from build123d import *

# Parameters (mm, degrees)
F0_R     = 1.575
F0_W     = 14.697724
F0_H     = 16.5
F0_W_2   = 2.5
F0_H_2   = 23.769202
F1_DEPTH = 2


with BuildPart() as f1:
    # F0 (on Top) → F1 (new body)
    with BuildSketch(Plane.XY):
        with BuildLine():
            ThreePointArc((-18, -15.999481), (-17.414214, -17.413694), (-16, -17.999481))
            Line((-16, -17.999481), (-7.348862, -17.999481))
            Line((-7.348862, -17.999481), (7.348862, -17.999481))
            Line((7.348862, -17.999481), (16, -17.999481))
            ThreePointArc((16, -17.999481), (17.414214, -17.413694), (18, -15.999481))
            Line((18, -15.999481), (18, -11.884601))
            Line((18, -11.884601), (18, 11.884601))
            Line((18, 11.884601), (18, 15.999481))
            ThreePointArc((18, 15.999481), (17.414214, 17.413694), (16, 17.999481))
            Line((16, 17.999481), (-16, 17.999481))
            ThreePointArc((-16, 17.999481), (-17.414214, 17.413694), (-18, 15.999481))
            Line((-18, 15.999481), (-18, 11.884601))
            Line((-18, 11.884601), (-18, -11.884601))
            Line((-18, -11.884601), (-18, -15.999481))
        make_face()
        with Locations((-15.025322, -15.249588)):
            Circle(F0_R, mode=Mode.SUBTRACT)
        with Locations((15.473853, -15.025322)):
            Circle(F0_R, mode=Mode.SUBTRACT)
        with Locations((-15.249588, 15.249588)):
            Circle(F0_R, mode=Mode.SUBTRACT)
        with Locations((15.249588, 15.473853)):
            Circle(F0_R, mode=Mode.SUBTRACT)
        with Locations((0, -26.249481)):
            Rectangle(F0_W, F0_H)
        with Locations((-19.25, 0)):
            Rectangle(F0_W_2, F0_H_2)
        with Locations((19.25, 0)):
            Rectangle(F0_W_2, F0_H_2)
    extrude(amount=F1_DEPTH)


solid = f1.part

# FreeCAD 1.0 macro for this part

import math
import FreeCAD as App
import Part
import Sketcher
from FreeCAD import Vector
Q = App.Units.Quantity

doc = App.newDocument("Part")
body = doc.addObject("PartDesign::Body", "Body")

# Sketch on XY plane
sketch1 = body.newObject("Sketcher::SketchObject", "Sketch")
sketch1.AttachmentSupport = (doc.getObject("XY_Plane"), [""])
sketch1.MapMode = "FlatFace"
sketch1.addGeometry(Part.ArcOfCircle(Part.Circle(Vector(-16, -15.999481, 0), Vector(0, 0, 1), 2), math.radians(-179.999994), math.radians(-90.000006)), False)
sketch1.addGeometry(Part.LineSegment(Vector(-16, -17.999481, 0), Vector(-7.348862, -17.999481, 0)), False)
sketch1.addGeometry(Part.LineSegment(Vector(-7.348862, -17.999481, 0), Vector(-7.348862, -34.499481, 0)), False)
sketch1.addGeometry(Part.LineSegment(Vector(-7.348862, -34.499481, 0), Vector(7.348862, -34.499481, 0)), False)
sketch1.addGeometry(Part.LineSegment(Vector(7.348862, -34.499481, 0), Vector(7.348862, -17.999481, 0)), False)
sketch1.addGeometry(Part.LineSegment(Vector(7.348862, -17.999481, 0), Vector(16, -17.999481, 0)), False)
sketch1.addGeometry(Part.ArcOfCircle(Part.Circle(Vector(16, -15.999481, 0), Vector(0, 0, 1), 2), math.radians(-89.999994), math.radians(-0.000006)), False)
sketch1.addGeometry(Part.LineSegment(Vector(18, -15.999481, 0), Vector(18, -11.884601, 0)), False)
sketch1.addGeometry(Part.LineSegment(Vector(18, -11.884601, 0), Vector(20.5, -11.884601, 0)), False)
sketch1.addGeometry(Part.LineSegment(Vector(20.5, -11.884601, 0), Vector(20.5, 11.884601, 0)), False)
sketch1.addGeometry(Part.LineSegment(Vector(20.5, 11.884601, 0), Vector(18, 11.884601, 0)), False)
sketch1.addGeometry(Part.LineSegment(Vector(18, 11.884601, 0), Vector(18, 15.999481, 0)), False)
sketch1.addGeometry(Part.ArcOfCircle(Part.Circle(Vector(16, 15.999481, 0), Vector(0, 0, 1), 2), math.radians(0.000006), math.radians(89.999994)), False)
sketch1.addGeometry(Part.LineSegment(Vector(16, 17.999481, 0), Vector(-16, 17.999481, 0)), False)
sketch1.addGeometry(Part.ArcOfCircle(Part.Circle(Vector(-16, 15.999481, 0), Vector(0, 0, 1), 2), math.radians(90.000006), math.radians(179.999994)), False)
sketch1.addGeometry(Part.LineSegment(Vector(-18, 15.999481, 0), Vector(-18, 11.884601, 0)), False)
sketch1.addGeometry(Part.LineSegment(Vector(-18, 11.884601, 0), Vector(-20.5, 11.884601, 0)), False)
sketch1.addGeometry(Part.LineSegment(Vector(-20.5, 11.884601, 0), Vector(-20.5, -11.884601, 0)), False)
sketch1.addGeometry(Part.LineSegment(Vector(-20.5, -11.884601, 0), Vector(-18, -11.884601, 0)), False)
sketch1.addGeometry(Part.LineSegment(Vector(-18, -11.884601, 0), Vector(-18, -15.999481, 0)), False)
sketch1.addGeometry(Part.Circle(Vector(-15.025322, -15.249588, 0), Vector(0, 0, 1), 1.575), False)
sketch1.addGeometry(Part.Circle(Vector(15.473853, -15.025322, 0), Vector(0, 0, 1), 1.575), False)
sketch1.addGeometry(Part.Circle(Vector(-15.249588, 15.249588, 0), Vector(0, 0, 1), 1.575), False)
sketch1.addGeometry(Part.Circle(Vector(15.249588, 15.473853, 0), Vector(0, 0, 1), 1.575), False)
sketch1.addConstraint(Sketcher.Constraint("Tangent", 0, 2, 1, 1))
sketch1.addConstraint(Sketcher.Constraint("Coincident", 1, 2, 2, 1))
sketch1.addConstraint(Sketcher.Constraint("Coincident", 2, 2, 3, 1))
sketch1.addConstraint(Sketcher.Constraint("Coincident", 3, 2, 4, 1))
sketch1.addConstraint(Sketcher.Constraint("Coincident", 4, 2, 5, 1))
sketch1.addConstraint(Sketcher.Constraint("Tangent", 5, 2, 6, 1))
sketch1.addConstraint(Sketcher.Constraint("Tangent", 6, 2, 7, 1))
sketch1.addConstraint(Sketcher.Constraint("Coincident", 7, 2, 8, 1))
sketch1.addConstraint(Sketcher.Constraint("Coincident", 8, 2, 9, 1))
sketch1.addConstraint(Sketcher.Constraint("Coincident", 9, 2, 10, 1))
sketch1.addConstraint(Sketcher.Constraint("Coincident", 10, 2, 11, 1))
sketch1.addConstraint(Sketcher.Constraint("Tangent", 11, 2, 12, 1))
sketch1.addConstraint(Sketcher.Constraint("Tangent", 12, 2, 13, 1))
sketch1.addConstraint(Sketcher.Constraint("Tangent", 13, 2, 14, 1))
sketch1.addConstraint(Sketcher.Constraint("Tangent", 14, 2, 15, 1))
sketch1.addConstraint(Sketcher.Constraint("Coincident", 15, 2, 16, 1))
sketch1.addConstraint(Sketcher.Constraint("Coincident", 16, 2, 17, 1))
sketch1.addConstraint(Sketcher.Constraint("Coincident", 17, 2, 18, 1))
sketch1.addConstraint(Sketcher.Constraint("Coincident", 18, 2, 19, 1))
sketch1.addConstraint(Sketcher.Constraint("Tangent", 19, 2, 0, 1))
sketch1.addConstraint(Sketcher.Constraint("Horizontal", 1))
sketch1.addConstraint(Sketcher.Constraint("Vertical", 2))
sketch1.addConstraint(Sketcher.Constraint("Horizontal", 3))
sketch1.addConstraint(Sketcher.Constraint("Vertical", 4))
sketch1.addConstraint(Sketcher.Constraint("Horizontal", 5))
sketch1.addConstraint(Sketcher.Constraint("Vertical", 7))
sketch1.addConstraint(Sketcher.Constraint("Horizontal", 8))
sketch1.addConstraint(Sketcher.Constraint("Vertical", 9))
sketch1.addConstraint(Sketcher.Constraint("Horizontal", 10))
sketch1.addConstraint(Sketcher.Constraint("Vertical", 11))
sketch1.addConstraint(Sketcher.Constraint("Horizontal", 13))
sketch1.addConstraint(Sketcher.Constraint("Vertical", 15))
sketch1.addConstraint(Sketcher.Constraint("Horizontal", 16))
sketch1.addConstraint(Sketcher.Constraint("Vertical", 17))
sketch1.addConstraint(Sketcher.Constraint("Horizontal", 18))
sketch1.addConstraint(Sketcher.Constraint("Vertical", 19))
sketch1.addConstraint(Sketcher.Constraint("Equal", 0, 6))
sketch1.addConstraint(Sketcher.Constraint("Equal", 6, 12))
sketch1.addConstraint(Sketcher.Constraint("Equal", 12, 14))
sketch1.addConstraint(Sketcher.Constraint("Equal", 20, 21))
sketch1.addConstraint(Sketcher.Constraint("Equal", 21, 22))
sketch1.addConstraint(Sketcher.Constraint("Equal", 22, 23))
sketch1.addConstraint(Sketcher.Constraint("Symmetric", 0, 3, 12, 3, -1, 1))
sketch1.addConstraint(Sketcher.Constraint("Symmetric", 6, 3, 14, 3, -1, 1))
sketch1.addConstraint(Sketcher.Constraint("Symmetric", 8, 2, 16, 2, -1, 1))
sketch1.addConstraint(Sketcher.Constraint("Symmetric", 10, 2, 15, 2, -2))
sketch1.addConstraint(Sketcher.Constraint("Horizontal", 8, 2, 17, 2))
sketch1.addConstraint(Sketcher.Constraint("Equal", 1, 5))
sketch1.addConstraint(Sketcher.Constraint("Radius", 0, Q("2 mm")))
sketch1.addConstraint(Sketcher.Constraint("Diameter", 20, Q("3.15 mm")))
sketch1.addConstraint(Sketcher.Constraint("DistanceX", 13, 2, 13, 1, Q("32 mm")))
sketch1.addConstraint(Sketcher.Constraint("DistanceX", 8, 1, 8, 2, Q("2.5 mm")))
sketch1.addConstraint(Sketcher.Constraint("DistanceY", 2, 2, 2, 1, Q("16.5 mm")))
sketch1.addConstraint(Sketcher.Constraint("DistanceY", 9, 1, 9, 2, Q("23.769202 mm")))
sketch1.addConstraint(Sketcher.Constraint("DistanceY", 7, 1, 7, 2, Q("4.11488 mm")))
sketch1.addConstraint(Sketcher.Constraint("DistanceX", 1, 1, 1, 2, Q("8.651138 mm")))
sketch1.addConstraint(Sketcher.Constraint("DistanceX", 20, 3, -1, 1, Q("15.025322 mm")))
sketch1.addConstraint(Sketcher.Constraint("DistanceY", 21, 3, -1, 1, Q("15.025322 mm")))
sketch1.addConstraint(Sketcher.Constraint("DistanceY", 20, 3, 14, 3, Q("31.249069 mm")))
sketch1.addConstraint(Sketcher.Constraint("DistanceX", 14, 3, 22, 3, Q("0.750412 mm")))
sketch1.addConstraint(Sketcher.Constraint("DistanceY", 0, 3, 22, 3, Q("31.249069 mm")))
sketch1.addConstraint(Sketcher.Constraint("DistanceX", 22, 3, 21, 3, Q("30.723441 mm")))
sketch1.addConstraint(Sketcher.Constraint("DistanceX", 23, 3, 12, 3, Q("0.750412 mm")))
sketch1.addConstraint(Sketcher.Constraint("DistanceY", -1, 1, 23, 3, Q("15.473853 mm")))
pad1 = body.newObject("PartDesign::Pad", "Pad")
pad1.Profile = sketch1
pad1.Length = 2

doc.recompute()
